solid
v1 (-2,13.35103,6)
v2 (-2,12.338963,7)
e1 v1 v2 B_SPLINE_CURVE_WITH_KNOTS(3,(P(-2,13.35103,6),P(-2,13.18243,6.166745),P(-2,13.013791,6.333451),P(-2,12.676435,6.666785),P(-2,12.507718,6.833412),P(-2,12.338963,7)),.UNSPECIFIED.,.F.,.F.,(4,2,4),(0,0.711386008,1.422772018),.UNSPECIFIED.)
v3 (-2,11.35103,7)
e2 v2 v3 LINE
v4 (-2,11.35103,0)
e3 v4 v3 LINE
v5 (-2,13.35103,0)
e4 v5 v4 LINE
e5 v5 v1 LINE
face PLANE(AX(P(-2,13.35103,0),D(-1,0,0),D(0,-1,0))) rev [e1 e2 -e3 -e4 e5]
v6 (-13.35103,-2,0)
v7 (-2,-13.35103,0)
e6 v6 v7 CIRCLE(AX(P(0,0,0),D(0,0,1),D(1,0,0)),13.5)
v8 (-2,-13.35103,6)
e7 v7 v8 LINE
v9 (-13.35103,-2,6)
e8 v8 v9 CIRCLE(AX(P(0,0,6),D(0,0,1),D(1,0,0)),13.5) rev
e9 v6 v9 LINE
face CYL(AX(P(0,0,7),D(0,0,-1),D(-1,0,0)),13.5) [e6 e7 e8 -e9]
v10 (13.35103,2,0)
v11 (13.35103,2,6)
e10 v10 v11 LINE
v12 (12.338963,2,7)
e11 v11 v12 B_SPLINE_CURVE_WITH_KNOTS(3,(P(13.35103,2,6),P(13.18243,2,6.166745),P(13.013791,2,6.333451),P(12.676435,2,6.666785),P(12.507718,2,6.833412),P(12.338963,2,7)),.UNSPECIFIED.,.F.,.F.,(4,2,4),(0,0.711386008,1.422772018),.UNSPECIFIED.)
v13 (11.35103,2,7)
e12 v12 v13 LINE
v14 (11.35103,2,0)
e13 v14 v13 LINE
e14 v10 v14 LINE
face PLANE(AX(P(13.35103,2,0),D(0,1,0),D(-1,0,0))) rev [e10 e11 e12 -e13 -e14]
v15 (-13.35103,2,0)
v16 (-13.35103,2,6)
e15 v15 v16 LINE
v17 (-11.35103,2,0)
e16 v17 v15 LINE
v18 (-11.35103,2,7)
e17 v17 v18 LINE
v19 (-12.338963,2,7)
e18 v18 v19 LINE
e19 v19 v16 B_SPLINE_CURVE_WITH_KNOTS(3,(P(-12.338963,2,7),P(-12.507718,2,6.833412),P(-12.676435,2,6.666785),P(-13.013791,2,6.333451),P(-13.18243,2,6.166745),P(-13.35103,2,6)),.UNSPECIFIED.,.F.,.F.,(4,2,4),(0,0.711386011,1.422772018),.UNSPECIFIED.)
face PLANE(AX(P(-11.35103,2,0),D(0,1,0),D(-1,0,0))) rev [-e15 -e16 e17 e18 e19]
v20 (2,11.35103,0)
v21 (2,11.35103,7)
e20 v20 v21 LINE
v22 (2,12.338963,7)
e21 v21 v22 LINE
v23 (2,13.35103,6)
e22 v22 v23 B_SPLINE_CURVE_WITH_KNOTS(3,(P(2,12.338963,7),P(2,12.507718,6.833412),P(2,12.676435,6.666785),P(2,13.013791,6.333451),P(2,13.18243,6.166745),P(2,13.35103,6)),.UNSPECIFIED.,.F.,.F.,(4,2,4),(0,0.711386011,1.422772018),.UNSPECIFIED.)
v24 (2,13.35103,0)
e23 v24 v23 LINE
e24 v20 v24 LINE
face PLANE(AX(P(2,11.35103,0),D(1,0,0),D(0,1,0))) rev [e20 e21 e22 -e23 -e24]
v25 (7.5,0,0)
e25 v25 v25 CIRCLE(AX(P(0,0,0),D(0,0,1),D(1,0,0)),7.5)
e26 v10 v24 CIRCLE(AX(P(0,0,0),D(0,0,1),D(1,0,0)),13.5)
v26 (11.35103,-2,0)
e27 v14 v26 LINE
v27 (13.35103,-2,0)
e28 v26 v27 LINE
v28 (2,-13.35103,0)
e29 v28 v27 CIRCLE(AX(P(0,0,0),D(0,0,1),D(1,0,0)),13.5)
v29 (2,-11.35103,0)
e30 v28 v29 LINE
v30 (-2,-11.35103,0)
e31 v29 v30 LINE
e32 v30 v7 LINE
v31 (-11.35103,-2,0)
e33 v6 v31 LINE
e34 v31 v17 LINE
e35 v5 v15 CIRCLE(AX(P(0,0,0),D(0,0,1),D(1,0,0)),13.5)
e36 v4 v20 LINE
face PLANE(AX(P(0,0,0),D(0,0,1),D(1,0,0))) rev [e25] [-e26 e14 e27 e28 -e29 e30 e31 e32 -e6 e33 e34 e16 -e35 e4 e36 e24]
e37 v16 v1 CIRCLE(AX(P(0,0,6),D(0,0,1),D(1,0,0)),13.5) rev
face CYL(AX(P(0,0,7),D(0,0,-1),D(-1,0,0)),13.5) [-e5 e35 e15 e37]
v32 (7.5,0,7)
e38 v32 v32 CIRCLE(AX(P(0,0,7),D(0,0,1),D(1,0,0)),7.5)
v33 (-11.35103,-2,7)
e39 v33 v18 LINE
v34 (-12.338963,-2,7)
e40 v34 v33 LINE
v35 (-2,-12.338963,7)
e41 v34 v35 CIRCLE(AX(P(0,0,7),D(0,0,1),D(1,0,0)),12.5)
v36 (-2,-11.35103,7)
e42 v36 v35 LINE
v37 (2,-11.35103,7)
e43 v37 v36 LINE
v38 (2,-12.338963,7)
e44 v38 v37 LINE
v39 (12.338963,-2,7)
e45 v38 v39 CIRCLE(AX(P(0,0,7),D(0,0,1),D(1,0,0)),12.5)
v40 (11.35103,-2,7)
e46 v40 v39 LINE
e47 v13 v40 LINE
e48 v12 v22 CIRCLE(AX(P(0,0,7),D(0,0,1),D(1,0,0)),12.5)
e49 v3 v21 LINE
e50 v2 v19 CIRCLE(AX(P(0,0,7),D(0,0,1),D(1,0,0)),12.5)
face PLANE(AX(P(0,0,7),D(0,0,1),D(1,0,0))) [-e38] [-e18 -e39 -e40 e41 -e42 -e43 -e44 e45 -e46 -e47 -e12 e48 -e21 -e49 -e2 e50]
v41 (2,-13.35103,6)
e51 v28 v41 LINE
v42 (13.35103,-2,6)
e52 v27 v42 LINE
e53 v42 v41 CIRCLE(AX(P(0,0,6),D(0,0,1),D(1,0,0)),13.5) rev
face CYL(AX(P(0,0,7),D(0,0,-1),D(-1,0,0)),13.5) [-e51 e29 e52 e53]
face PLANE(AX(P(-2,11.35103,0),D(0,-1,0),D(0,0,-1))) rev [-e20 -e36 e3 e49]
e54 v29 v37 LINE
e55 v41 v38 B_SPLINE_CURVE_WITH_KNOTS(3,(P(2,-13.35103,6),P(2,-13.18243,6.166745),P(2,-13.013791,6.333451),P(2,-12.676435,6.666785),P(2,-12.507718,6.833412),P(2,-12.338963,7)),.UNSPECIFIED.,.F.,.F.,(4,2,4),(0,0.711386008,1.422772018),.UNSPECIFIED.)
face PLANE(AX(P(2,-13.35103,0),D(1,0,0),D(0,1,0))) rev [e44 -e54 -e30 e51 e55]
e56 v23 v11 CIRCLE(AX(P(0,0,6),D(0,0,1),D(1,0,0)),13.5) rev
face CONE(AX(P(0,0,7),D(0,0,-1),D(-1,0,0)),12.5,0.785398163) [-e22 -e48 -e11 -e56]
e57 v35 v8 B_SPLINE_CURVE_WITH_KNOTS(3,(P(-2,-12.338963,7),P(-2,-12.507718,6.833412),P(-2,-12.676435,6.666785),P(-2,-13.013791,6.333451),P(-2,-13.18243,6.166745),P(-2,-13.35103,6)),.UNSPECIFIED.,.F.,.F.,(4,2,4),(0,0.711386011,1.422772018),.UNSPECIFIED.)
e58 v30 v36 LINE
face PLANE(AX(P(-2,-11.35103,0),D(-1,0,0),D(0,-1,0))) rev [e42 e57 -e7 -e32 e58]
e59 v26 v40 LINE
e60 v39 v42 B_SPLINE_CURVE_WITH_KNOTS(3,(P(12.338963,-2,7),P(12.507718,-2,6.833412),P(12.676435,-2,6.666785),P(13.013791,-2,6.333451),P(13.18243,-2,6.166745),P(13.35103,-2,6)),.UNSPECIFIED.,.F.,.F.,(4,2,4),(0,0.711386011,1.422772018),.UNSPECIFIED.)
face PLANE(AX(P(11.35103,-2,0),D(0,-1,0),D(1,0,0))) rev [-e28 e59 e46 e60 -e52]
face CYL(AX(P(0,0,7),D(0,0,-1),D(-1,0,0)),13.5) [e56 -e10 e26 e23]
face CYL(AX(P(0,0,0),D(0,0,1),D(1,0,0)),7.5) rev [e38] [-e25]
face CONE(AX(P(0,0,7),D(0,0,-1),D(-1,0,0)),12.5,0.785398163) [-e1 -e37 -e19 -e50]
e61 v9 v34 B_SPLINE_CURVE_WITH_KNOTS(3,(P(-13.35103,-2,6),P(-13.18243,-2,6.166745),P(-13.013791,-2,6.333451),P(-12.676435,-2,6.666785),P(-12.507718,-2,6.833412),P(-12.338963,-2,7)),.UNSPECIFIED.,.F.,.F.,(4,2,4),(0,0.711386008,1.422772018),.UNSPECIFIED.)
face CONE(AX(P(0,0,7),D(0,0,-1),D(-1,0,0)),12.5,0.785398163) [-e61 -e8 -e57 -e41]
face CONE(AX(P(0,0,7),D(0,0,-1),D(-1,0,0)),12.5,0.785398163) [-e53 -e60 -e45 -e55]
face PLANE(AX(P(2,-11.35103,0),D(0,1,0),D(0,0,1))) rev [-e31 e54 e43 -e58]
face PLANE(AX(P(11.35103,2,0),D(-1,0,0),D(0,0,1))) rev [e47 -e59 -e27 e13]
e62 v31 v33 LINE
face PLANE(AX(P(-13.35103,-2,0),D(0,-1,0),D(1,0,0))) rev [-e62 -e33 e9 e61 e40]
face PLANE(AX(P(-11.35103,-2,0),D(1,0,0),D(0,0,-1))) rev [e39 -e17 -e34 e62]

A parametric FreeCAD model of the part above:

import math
import FreeCAD as App
import Part
import Sketcher

V = App.Vector
Q = App.Units.Quantity


def edges_at(feature, points):
    """Names of the edges that pass closest to the given points."""
    edges = feature.Shape.Edges
    near = lambda p: min(range(len(edges)), key=lambda i: edges[i].distToShape(Part.Vertex(*p))[0])
    return sorted({f"Edge{near(p) + 1}" for p in points})

doc = App.newDocument("Part")
body = doc.addObject("PartDesign::Body", "Body")

# Sketch on XY plane
sketch1 = body.newObject("Sketcher::SketchObject", "Sketch")
sketch1.AttachmentSupport = (doc.getObject("XY_Plane"), [""])
sketch1.MapMode = "FlatFace"
sketch1.addGeometry(Part.Circle(V(0, 0, 0), V(0, 0, 1), 14), False)
sketch1.addConstraint([
    Sketcher.Constraint("Coincident", 0, 3, -1, 1),
    Sketcher.Constraint("Diameter", 0, Q("27 mm")),
])
pad1 = body.newObject("PartDesign::Pad", "Pad")
pad1.Profile = sketch1
pad1.Length = 7

# Sketch on XY plane
sketch2 = body.newObject("Sketcher::SketchObject", "Sketch001")
sketch2.AttachmentSupport = (doc.getObject("XY_Plane"), [""])
sketch2.MapMode = "FlatFace"
sketch2.AttachmentOffset = App.Placement(V(0, 0, 7), App.Rotation())
sketch2.addGeometry([
    Part.LineSegment(V(-2, 13.4, 0), V(-2, 11.4, 0)),  # 0
    Part.LineSegment(V(-2, 11.4, 0), V(2, 11.4, 0)),  # 1
    Part.LineSegment(V(2, 11.4, 0), V(2, 13.4, 0)),  # 2
    Part.ArcOfCircle(Part.Circle(V(0, 0, 0), V(0, 0, 1), 13.5), math.radians(81.48), math.radians(98.52)),  # 3
    Part.LineSegment(V(13.4, 2, 0), V(11.4, 2, 0)),  # 4
    Part.LineSegment(V(11.4, 2, 0), V(11.4, -2, 0)),  # 5
    Part.LineSegment(V(11.4, -2, 0), V(13.4, -2, 0)),  # 6
    Part.ArcOfCircle(Part.Circle(V(0, 0, 0), V(0, 0, 1), 13.5), math.radians(-8.52), math.radians(8.52)),  # 7
    Part.LineSegment(V(2, -13.4, 0), V(2, -11.4, 0)),  # 8
    Part.LineSegment(V(2, -11.4, 0), V(-2, -11.4, 0)),  # 9
    Part.LineSegment(V(-2, -11.4, 0), V(-2, -13.4, 0)),  # 10
    Part.ArcOfCircle(Part.Circle(V(0, 0, 0), V(0, 0, 1), 13.5), math.radians(-98.52), math.radians(-81.48)),  # 11
    Part.LineSegment(V(-13.4, -2, 0), V(-11.4, -2, 0)),  # 12
    Part.LineSegment(V(-11.4, -2, 0), V(-11.4, 2, 0)),  # 13
    Part.LineSegment(V(-11.4, 2, 0), V(-13.4, 2, 0)),  # 14
    Part.ArcOfCircle(Part.Circle(V(0, 0, 0), V(0, 0, 1), 13.5), math.radians(171.48), math.radians(188.52)),  # 15
], False)
sketch2.addConstraint([
    Sketcher.Constraint("Coincident", 0, 2, 1, 1),
    Sketcher.Constraint("Coincident", 1, 2, 2, 1),
    Sketcher.Constraint("Coincident", 2, 2, 3, 1),
    Sketcher.Constraint("Coincident", 3, 2, 0, 1),
    Sketcher.Constraint("Coincident", 4, 2, 5, 1),
    Sketcher.Constraint("Coincident", 5, 2, 6, 1),
    Sketcher.Constraint("Coincident", 6, 2, 7, 1),
    Sketcher.Constraint("Coincident", 7, 2, 4, 1),
    Sketcher.Constraint("Coincident", 8, 2, 9, 1),
    Sketcher.Constraint("Coincident", 9, 2, 10, 1),
    Sketcher.Constraint("Coincident", 10, 2, 11, 1),
    Sketcher.Constraint("Coincident", 11, 2, 8, 1),
    Sketcher.Constraint("Coincident", 12, 2, 13, 1),
    Sketcher.Constraint("Coincident", 13, 2, 14, 1),
    Sketcher.Constraint("Coincident", 14, 2, 15, 1),
    Sketcher.Constraint("Coincident", 15, 2, 12, 1),
    Sketcher.Constraint("Vertical", 0),
    Sketcher.Constraint("Horizontal", 1),
    Sketcher.Constraint("Vertical", 2),
    Sketcher.Constraint("Horizontal", 4),
    Sketcher.Constraint("Vertical", 5),
    Sketcher.Constraint("Horizontal", 6),
    Sketcher.Constraint("Vertical", 8),
    Sketcher.Constraint("Horizontal", 9),
    Sketcher.Constraint("Vertical", 10),
    Sketcher.Constraint("Horizontal", 12),
    Sketcher.Constraint("Vertical", 13),
    Sketcher.Constraint("Horizontal", 14),
    Sketcher.Constraint("Coincident", 3, 3, -1, 1),
    Sketcher.Constraint("Coincident", 7, 3, -1, 1),
    Sketcher.Constraint("Coincident", 11, 3, -1, 1),
    Sketcher.Constraint("Coincident", 15, 3, -1, 1),
    Sketcher.Constraint("Equal", 3, 7),
    Sketcher.Constraint("Equal", 7, 11),
    Sketcher.Constraint("Equal", 11, 15),
    Sketcher.Constraint("Symmetric", 0, 2, 8, 2, -1, 1),
    Sketcher.Constraint("Symmetric", 4, 2, 12, 2, -1, 1),
    Sketcher.Constraint("Horizontal", 2, 2, 3, 2),
    Sketcher.Constraint("Horizontal", 10, 2, 11, 2),
    Sketcher.Constraint("Horizontal", 6, 2, 12, 2),
    Sketcher.Constraint("Horizontal", 7, 2, 13, 2),
    Sketcher.Constraint("Equal", 14, 0),
    Sketcher.Constraint("Equal", 9, 5),
    Sketcher.Constraint("Radius", 3, Q("13.5 mm")),
    Sketcher.Constraint("DistanceX", 1, 1, 1, 2, Q("4 mm")),
    Sketcher.Constraint("DistanceX", 4, 2, 4, 1, Q("2 mm")),
])
pocket1 = body.newObject("PartDesign::Pocket", "Pocket")
pocket1.Profile = sketch2
pocket1.Type = "ThroughAll"

# Sketch on XY plane
sketch3 = body.newObject("Sketcher::SketchObject", "Sketch002")
sketch3.AttachmentSupport = (doc.getObject("XY_Plane"), [""])
sketch3.MapMode = "FlatFace"
sketch3.AttachmentOffset = App.Placement(V(0, 0, 7), App.Rotation())
sketch3.addGeometry(Part.Circle(V(0, 0, 0), V(0, 0, 1), 8), False)
sketch3.addConstraint([
    Sketcher.Constraint("Coincident", 0, 3, -1, 1),
    Sketcher.Constraint("Diameter", 0, Q("15 mm")),
])
pocket2 = body.newObject("PartDesign::Pocket", "Pocket001")
pocket2.Profile = sketch3
pocket2.Type = "ThroughAll"
doc.recompute()

chamfer = body.newObject("PartDesign::Chamfer", "Chamfer")
chamfer.Base = (pocket2, edges_at(pocket2, [
    (-9.546, 9.546, 7),
    (-9.546, -9.546, 7),
    (9.546, -9.546, 7),
    (9.546, 9.546, 7),
]))
chamfer.Size = 1

doc.recompute()
